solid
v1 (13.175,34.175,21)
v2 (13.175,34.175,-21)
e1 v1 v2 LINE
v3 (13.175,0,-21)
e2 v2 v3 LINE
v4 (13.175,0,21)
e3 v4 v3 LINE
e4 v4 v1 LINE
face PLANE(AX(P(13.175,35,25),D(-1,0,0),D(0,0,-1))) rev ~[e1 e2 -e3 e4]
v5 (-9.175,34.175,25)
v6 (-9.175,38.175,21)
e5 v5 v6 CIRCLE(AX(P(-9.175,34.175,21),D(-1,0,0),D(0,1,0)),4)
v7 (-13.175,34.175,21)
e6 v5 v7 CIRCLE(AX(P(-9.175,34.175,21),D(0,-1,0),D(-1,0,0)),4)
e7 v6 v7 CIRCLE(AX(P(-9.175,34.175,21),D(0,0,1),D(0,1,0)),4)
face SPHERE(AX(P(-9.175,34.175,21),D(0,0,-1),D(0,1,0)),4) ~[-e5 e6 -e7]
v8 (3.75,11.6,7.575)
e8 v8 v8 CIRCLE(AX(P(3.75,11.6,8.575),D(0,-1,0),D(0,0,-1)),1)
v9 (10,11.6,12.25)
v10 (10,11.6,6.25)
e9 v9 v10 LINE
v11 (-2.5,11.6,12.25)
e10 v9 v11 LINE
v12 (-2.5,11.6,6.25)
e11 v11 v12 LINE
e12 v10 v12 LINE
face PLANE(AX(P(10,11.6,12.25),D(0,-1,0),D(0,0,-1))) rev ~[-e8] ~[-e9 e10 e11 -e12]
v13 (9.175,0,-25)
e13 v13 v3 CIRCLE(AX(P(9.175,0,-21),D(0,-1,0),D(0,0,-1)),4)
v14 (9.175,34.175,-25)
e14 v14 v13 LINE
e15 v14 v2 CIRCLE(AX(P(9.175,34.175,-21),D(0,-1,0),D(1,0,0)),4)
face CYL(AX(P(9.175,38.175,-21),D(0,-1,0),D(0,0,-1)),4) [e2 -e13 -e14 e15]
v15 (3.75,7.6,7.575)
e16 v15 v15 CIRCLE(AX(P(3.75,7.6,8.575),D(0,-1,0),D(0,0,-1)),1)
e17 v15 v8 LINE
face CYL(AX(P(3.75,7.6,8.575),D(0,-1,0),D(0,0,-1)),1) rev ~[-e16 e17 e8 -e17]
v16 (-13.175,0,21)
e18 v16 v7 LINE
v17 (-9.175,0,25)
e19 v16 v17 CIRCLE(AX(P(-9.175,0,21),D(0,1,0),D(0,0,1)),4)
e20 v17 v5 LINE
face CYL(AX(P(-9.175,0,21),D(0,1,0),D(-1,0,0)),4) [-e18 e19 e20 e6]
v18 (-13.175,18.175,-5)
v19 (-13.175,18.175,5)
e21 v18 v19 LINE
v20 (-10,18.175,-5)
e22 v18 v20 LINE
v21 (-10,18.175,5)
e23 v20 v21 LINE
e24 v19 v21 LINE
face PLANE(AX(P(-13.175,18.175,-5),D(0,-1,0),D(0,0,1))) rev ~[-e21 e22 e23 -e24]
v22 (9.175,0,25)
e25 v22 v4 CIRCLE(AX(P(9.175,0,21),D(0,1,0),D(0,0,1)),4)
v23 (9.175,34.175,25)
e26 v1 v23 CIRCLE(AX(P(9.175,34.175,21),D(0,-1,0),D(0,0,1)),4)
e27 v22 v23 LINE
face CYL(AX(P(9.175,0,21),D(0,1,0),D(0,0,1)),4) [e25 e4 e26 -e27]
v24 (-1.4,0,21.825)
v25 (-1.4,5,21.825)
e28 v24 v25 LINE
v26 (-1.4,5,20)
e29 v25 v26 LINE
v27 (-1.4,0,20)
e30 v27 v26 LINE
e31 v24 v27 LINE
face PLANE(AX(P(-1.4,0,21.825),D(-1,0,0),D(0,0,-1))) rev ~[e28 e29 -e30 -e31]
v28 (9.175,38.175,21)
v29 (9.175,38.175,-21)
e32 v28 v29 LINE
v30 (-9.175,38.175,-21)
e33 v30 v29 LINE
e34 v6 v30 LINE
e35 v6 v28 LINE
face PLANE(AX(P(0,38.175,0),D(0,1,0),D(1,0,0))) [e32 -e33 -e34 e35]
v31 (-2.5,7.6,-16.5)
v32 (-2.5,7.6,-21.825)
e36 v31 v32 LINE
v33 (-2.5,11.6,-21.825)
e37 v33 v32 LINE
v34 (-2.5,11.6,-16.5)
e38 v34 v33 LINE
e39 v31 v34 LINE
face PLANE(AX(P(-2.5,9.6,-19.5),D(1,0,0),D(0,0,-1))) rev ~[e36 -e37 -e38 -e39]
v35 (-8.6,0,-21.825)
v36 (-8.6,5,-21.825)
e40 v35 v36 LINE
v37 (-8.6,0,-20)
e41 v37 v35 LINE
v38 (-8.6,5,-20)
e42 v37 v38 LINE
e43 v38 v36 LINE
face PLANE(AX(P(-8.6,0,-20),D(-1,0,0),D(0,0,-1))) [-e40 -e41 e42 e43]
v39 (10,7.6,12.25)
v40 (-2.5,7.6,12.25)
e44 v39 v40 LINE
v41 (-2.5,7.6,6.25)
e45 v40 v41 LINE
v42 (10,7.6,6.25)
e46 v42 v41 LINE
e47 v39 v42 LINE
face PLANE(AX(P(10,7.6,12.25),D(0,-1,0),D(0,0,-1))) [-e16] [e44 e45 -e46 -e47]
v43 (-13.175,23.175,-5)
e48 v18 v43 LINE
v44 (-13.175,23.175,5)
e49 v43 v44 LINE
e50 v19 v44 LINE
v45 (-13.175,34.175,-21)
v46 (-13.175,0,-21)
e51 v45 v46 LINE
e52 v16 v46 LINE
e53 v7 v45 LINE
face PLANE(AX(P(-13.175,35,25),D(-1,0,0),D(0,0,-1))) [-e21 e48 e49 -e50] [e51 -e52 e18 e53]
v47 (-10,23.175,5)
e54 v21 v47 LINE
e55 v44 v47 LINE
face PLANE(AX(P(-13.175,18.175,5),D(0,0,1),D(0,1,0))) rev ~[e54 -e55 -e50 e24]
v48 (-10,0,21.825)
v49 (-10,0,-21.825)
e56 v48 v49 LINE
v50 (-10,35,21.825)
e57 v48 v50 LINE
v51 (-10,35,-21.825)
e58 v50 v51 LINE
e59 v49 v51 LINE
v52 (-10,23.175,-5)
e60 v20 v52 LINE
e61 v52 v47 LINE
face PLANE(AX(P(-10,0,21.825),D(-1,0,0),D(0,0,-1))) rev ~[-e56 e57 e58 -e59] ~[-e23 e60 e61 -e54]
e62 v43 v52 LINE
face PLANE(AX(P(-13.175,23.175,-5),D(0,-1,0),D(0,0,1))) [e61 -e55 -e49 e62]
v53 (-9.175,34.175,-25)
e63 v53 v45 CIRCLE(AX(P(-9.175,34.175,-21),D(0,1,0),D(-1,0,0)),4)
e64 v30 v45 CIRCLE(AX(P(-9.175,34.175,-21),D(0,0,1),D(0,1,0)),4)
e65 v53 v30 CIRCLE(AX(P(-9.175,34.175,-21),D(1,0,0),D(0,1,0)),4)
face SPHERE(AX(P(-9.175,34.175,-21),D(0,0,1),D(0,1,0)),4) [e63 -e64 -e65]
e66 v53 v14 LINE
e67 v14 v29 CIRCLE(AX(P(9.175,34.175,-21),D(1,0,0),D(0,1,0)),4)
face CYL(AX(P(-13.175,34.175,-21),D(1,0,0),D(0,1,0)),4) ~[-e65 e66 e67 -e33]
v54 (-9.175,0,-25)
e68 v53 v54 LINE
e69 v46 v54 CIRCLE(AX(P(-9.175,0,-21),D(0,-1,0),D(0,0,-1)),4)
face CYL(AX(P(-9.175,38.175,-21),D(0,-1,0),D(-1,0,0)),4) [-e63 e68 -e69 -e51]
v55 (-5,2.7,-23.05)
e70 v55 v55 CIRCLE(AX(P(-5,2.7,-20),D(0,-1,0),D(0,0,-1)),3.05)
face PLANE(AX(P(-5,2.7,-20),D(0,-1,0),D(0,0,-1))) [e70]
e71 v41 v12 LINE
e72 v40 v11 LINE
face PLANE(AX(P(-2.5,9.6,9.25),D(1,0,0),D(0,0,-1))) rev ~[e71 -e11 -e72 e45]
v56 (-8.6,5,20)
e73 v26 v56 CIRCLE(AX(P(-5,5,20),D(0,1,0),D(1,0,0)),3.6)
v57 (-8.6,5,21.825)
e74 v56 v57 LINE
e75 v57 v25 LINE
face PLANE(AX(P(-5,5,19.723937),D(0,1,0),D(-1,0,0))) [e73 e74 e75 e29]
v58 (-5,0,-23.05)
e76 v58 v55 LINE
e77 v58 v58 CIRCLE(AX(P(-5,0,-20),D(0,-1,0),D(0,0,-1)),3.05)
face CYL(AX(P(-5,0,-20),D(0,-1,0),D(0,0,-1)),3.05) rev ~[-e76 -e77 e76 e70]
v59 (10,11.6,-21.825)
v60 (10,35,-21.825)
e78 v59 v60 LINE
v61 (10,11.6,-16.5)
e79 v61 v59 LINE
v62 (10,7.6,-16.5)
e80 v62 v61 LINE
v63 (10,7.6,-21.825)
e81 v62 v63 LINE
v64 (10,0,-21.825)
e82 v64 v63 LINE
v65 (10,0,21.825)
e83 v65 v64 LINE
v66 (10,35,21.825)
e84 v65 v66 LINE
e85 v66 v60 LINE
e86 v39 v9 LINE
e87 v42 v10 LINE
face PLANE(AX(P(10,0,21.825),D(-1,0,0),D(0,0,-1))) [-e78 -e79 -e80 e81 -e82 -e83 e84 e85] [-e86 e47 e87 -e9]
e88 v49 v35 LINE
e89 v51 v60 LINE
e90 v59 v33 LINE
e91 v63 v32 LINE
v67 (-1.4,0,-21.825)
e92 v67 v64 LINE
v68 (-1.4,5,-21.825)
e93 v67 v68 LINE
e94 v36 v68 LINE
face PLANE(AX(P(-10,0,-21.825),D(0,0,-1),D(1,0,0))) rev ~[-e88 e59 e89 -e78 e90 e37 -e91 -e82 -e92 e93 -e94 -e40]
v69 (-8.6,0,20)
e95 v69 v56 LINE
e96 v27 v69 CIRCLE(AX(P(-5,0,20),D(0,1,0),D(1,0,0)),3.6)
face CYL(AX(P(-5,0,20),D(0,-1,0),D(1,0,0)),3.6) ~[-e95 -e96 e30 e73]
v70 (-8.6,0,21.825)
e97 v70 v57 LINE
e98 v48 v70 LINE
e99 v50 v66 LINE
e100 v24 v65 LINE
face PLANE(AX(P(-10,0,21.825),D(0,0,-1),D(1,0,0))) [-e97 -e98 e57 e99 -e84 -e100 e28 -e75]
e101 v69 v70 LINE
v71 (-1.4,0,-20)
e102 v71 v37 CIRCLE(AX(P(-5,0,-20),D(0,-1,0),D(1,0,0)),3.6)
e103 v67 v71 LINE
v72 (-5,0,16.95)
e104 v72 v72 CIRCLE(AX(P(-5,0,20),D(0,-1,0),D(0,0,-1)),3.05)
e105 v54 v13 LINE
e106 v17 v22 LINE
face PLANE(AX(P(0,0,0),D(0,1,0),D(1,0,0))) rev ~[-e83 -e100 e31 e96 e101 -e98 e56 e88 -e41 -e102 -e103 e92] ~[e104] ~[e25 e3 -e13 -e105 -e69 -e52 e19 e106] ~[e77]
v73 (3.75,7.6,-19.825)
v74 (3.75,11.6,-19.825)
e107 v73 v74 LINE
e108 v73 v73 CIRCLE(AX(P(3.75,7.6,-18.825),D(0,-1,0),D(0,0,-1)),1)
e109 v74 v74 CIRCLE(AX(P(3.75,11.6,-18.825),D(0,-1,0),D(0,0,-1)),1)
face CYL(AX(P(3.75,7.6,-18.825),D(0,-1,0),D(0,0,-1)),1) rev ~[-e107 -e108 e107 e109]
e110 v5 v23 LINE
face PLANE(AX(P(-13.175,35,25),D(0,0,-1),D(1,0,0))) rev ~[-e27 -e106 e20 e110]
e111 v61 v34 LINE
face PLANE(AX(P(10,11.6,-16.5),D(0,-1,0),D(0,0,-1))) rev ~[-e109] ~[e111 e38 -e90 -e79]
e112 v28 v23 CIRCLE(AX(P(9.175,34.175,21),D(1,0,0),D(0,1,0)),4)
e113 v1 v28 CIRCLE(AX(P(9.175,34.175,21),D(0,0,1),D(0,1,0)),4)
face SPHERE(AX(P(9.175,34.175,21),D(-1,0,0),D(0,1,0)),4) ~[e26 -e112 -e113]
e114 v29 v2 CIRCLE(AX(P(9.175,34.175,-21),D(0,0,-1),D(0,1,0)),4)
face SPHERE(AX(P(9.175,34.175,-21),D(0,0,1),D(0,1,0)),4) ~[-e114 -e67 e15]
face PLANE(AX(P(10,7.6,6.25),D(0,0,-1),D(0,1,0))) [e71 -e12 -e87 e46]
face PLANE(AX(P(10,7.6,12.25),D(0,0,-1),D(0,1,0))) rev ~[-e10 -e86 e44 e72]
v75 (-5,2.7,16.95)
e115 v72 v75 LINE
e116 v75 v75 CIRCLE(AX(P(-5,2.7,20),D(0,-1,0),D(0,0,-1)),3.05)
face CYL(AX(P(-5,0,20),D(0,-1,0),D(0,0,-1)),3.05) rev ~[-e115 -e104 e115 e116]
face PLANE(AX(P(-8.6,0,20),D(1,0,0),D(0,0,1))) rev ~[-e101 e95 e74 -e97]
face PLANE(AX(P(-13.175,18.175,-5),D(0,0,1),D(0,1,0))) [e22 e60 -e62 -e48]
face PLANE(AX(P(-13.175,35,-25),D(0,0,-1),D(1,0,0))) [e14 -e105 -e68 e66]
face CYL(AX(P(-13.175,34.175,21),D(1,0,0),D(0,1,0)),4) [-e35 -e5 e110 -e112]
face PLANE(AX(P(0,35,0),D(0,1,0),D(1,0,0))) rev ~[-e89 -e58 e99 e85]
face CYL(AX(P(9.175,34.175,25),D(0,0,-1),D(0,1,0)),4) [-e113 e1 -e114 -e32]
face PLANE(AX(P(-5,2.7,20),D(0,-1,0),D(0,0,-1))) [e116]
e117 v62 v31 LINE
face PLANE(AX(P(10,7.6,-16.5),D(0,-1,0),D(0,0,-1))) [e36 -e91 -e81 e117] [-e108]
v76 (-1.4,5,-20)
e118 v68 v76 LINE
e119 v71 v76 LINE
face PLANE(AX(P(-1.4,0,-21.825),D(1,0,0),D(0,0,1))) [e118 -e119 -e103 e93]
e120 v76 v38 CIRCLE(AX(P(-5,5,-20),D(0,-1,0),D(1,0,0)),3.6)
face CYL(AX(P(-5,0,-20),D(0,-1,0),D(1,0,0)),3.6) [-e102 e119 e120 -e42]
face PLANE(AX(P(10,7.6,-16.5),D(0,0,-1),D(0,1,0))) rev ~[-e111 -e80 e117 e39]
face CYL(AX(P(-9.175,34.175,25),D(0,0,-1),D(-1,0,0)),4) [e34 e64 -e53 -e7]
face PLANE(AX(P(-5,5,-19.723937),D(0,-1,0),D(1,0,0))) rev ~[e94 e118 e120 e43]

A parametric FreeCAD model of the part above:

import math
import FreeCAD as App
import Part
import Sketcher
Q = App.Units.Quantity


def edges_at(feature, points):
    """Names of the edges that pass closest to the given points."""
    edges = feature.Shape.Edges
    near = lambda p: min(range(len(edges)), key=lambda i: edges[i].distToShape(Part.Vertex(*p))[0])
    return sorted({f"Edge{near(p) + 1}" for p in points})


def add_polygon(sketch, points):
    """Adds a closed chain of lines whose ends are joined by coincident constraints."""
    first, n = sketch.GeometryCount, len(points)
    for a, b in zip(points, points[1:] + points[:1]):
        sketch.addGeometry(Part.LineSegment(App.Vector(*a, 0), App.Vector(*b, 0)), False)
    for i in range(n):
        sketch.addConstraint(Sketcher.Constraint("Coincident", first + i, 2, first + (i + 1) % n, 1))

doc = App.newDocument("Part")
body = doc.addObject("PartDesign::Body", "Body")

sketch1 = body.newObject("Sketcher::SketchObject", "Sketch")
sketch1.AttachmentSupport = (doc.getObject("XZ_Plane"), [""])
sketch1.MapMode = "FlatFace"
add_polygon(sketch1, [(-13, -25), (-13, 25), (13, 25), (13, -25)])
add_polygon(sketch1, [(10, 22), (-10, 22), (-10, -22), (10, -22)])
sketch1.addConstraint(Sketcher.Constraint("Vertical", 0))
sketch1.addConstraint(Sketcher.Constraint("Horizontal", 1))
sketch1.addConstraint(Sketcher.Constraint("Vertical", 2))
sketch1.addConstraint(Sketcher.Constraint("Horizontal", 3))
sketch1.addConstraint(Sketcher.Constraint("Horizontal", 4))
sketch1.addConstraint(Sketcher.Constraint("Vertical", 5))
sketch1.addConstraint(Sketcher.Constraint("Horizontal", 6))
sketch1.addConstraint(Sketcher.Constraint("Vertical", 7))
sketch1.addConstraint(Sketcher.Constraint("Symmetric", 0, 2, 2, 2, -1, 1))
sketch1.addConstraint(Sketcher.Constraint("Symmetric", 4, 2, 6, 2, -1, 1))
sketch1.addConstraint(Sketcher.Constraint("DistanceX", 4, 2, 4, 1, Q("20 mm")))
sketch1.addConstraint(Sketcher.Constraint("DistanceY", 0, 1, 0, 2, Q("50 mm")))
sketch1.addConstraint(Sketcher.Constraint("DistanceX", 1, 1, 1, 2, Q("26.35 mm")))
sketch1.addConstraint(Sketcher.Constraint("DistanceY", 5, 2, 5, 1, Q("43.65 mm")))
pad1 = body.newObject("PartDesign::Pad", "Pad")
pad1.Profile = sketch1
pad1.Length = 35
pad1.Reversed = True

sketch2 = body.newObject("Sketcher::SketchObject", "Sketch001")
sketch2.AttachmentSupport = (doc.getObject("XZ_Plane"), [""])
sketch2.MapMode = "FlatFace"
sketch2.AttachmentOffset = App.Placement(App.Vector(0, 0, -35), App.Rotation())
add_polygon(sketch2, [(-13, -25), (-13, 25), (13, 25), (13, -25)])
sketch2.addConstraint(Sketcher.Constraint("Vertical", 0))
sketch2.addConstraint(Sketcher.Constraint("Horizontal", 1))
sketch2.addConstraint(Sketcher.Constraint("Vertical", 2))
sketch2.addConstraint(Sketcher.Constraint("Horizontal", 3))
sketch2.addConstraint(Sketcher.Constraint("Symmetric", 0, 2, 2, 2, -1, 1))
sketch2.addConstraint(Sketcher.Constraint("DistanceY", 0, 1, 0, 2, Q("50 mm")))
sketch2.addConstraint(Sketcher.Constraint("DistanceX", 1, 1, 1, 2, Q("26.35 mm")))
pad2 = body.newObject("PartDesign::Pad", "Pad001")
pad2.Profile = sketch2
pad2.Length = 3.175
pad2.Reversed = True

sketch3 = body.newObject("Sketcher::SketchObject", "Sketch002")
sketch3.AttachmentSupport = (doc.getObject("XZ_Plane"), [""])
sketch3.MapMode = "FlatFace"
sketch3.addGeometry(Part.LineSegment(App.Vector(-8.6, -20, 0), App.Vector(-8.6, -21.8, 0)), False)
sketch3.addGeometry(Part.LineSegment(App.Vector(-8.6, -21.8, 0), App.Vector(-1.4, -21.8, 0)), False)
sketch3.addGeometry(Part.LineSegment(App.Vector(-1.4, -21.8, 0), App.Vector(-1.4, -20, 0)), False)
sketch3.addGeometry(Part.ArcOfCircle(Part.Circle(App.Vector(-5, -20, 0), App.Vector(0, 0, 1), 3.6), math.radians(0), math.radians(180)), False)
sketch3.addGeometry(Part.LineSegment(App.Vector(-1.4, 21.8, 0), App.Vector(-8.6, 21.8, 0)), False)
sketch3.addGeometry(Part.LineSegment(App.Vector(-8.6, 21.8, 0), App.Vector(-8.6, 20, 0)), False)
sketch3.addGeometry(Part.ArcOfCircle(Part.Circle(App.Vector(-5, 20, 0), App.Vector(0, 0, 1), 3.6), math.radians(180), math.radians(360)), False)
sketch3.addGeometry(Part.LineSegment(App.Vector(-1.4, 20, 0), App.Vector(-1.4, 21.8, 0)), False)
sketch3.addConstraint(Sketcher.Constraint("Coincident", 0, 2, 1, 1))
sketch3.addConstraint(Sketcher.Constraint("Coincident", 1, 2, 2, 1))
sketch3.addConstraint(Sketcher.Constraint("Tangent", 2, 2, 3, 1))
sketch3.addConstraint(Sketcher.Constraint("Tangent", 3, 2, 0, 1))
sketch3.addConstraint(Sketcher.Constraint("Coincident", 4, 2, 5, 1))
sketch3.addConstraint(Sketcher.Constraint("Tangent", 5, 2, 6, 1))
sketch3.addConstraint(Sketcher.Constraint("Tangent", 6, 2, 7, 1))
sketch3.addConstraint(Sketcher.Constraint("Coincident", 7, 2, 4, 1))
sketch3.addConstraint(Sketcher.Constraint("Vertical", 0))
sketch3.addConstraint(Sketcher.Constraint("Horizontal", 1))
sketch3.addConstraint(Sketcher.Constraint("Vertical", 2))
sketch3.addConstraint(Sketcher.Constraint("Horizontal", 4))
sketch3.addConstraint(Sketcher.Constraint("Vertical", 5))
sketch3.addConstraint(Sketcher.Constraint("Vertical", 7))
sketch3.addConstraint(Sketcher.Constraint("Equal", 3, 6))
sketch3.addConstraint(Sketcher.Constraint("Symmetric", 3, 3, 6, 3, -1))
sketch3.addConstraint(Sketcher.Constraint("Equal", 2, 5))
sketch3.addConstraint(Sketcher.Constraint("Radius", 3, Q("3.6 mm")))
sketch3.addConstraint(Sketcher.Constraint("DistanceX", 3, 3, -1, 1, Q("5 mm")))
sketch3.addConstraint(Sketcher.Constraint("DistanceY", 3, 3, -1, 1, Q("20 mm")))
sketch3.addConstraint(Sketcher.Constraint("DistanceY", 0, 2, 0, 1, Q("1.825 mm")))
pad3 = body.newObject("PartDesign::Pad", "Pad002")
pad3.Profile = sketch3
pad3.Length = 5
pad3.Reversed = True
doc.recompute()

fillet = body.newObject("PartDesign::Fillet", "Fillet")
fillet.Base = (pad3, edges_at(pad3, [
    (-13.175, 38.175, 0),
    (0, 38.175, 25),
    (13.175, 38.175, 0),
    (0, 38.175, -25),
    (13.175, 19.087, 25),
    (-13.175, 19.087, 25),
    (-13.175, 19.087, -25),
    (13.175, 19.087, -25),
]))
fillet.Radius = 4

sketch4 = body.newObject("Sketcher::SketchObject", "Sketch003")
sketch4.AttachmentSupport = (doc.getObject("YZ_Plane"), [""])
sketch4.MapMode = "FlatFace"
sketch4.AttachmentOffset = App.Placement(App.Vector(0, 0, -13.175), App.Rotation())
add_polygon(sketch4, [(23, -5), (18, -5), (18, 5), (23, 5)])
sketch4.addConstraint(Sketcher.Constraint("Horizontal", 0))
sketch4.addConstraint(Sketcher.Constraint("Vertical", 1))
sketch4.addConstraint(Sketcher.Constraint("Horizontal", 2))
sketch4.addConstraint(Sketcher.Constraint("Vertical", 3))
sketch4.addConstraint(Sketcher.Constraint("DistanceX", 0, 2, 0, 1, Q("5 mm")))
sketch4.addConstraint(Sketcher.Constraint("DistanceY", 1, 1, 1, 2, Q("10 mm")))
sketch4.addConstraint(Sketcher.Constraint("DistanceY", 0, 2, -1, 1, Q("5 mm")))
sketch4.addConstraint(Sketcher.Constraint("DistanceX", -1, 1, 0, 2, Q("18.175 mm")))
pocket1 = body.newObject("PartDesign::Pocket", "Pocket")
pocket1.Profile = sketch4
pocket1.Length = 3.175
pocket1.Reversed = True

sketch5 = body.newObject("Sketcher::SketchObject", "Sketch004")
sketch5.AttachmentSupport = (doc.getObject("XZ_Plane"), [""])
sketch5.MapMode = "FlatFace"
sketch5.addGeometry(Part.Circle(App.Vector(-5, -20, 0), App.Vector(0, 0, 1), 3), False)
sketch5.addGeometry(Part.Circle(App.Vector(-5, 20, 0), App.Vector(0, 0, 1), 3), False)
sketch5.addConstraint(Sketcher.Constraint("Equal", 0, 1))
sketch5.addConstraint(Sketcher.Constraint("Symmetric", 0, 3, 1, 3, -1))
sketch5.addConstraint(Sketcher.Constraint("Diameter", 0, Q("6.1 mm")))
sketch5.addConstraint(Sketcher.Constraint("DistanceX", 0, 3, -1, 1, Q("5 mm")))
sketch5.addConstraint(Sketcher.Constraint("DistanceY", 0, 3, -1, 1, Q("20 mm")))
pocket2 = body.newObject("PartDesign::Pocket", "Pocket001")
pocket2.Profile = sketch5
pocket2.Length = 2.7

sketch6 = body.newObject("Sketcher::SketchObject", "Sketch005")
sketch6.AttachmentSupport = (doc.getObject("YZ_Plane"), [""])
sketch6.MapMode = "FlatFace"
sketch6.AttachmentOffset = App.Placement(App.Vector(0, 0, 10), App.Rotation())
add_polygon(sketch6, [(11.6, -16.5), (7.6, -16.5), (7.6, -22.5), (11.6, -22.5)])
add_polygon(sketch6, [(11.6, 12.2), (7.6, 12.2), (7.6, 6.2), (11.6, 6.2)])
sketch6.addConstraint(Sketcher.Constraint("Horizontal", 0))
sketch6.addConstraint(Sketcher.Constraint("Vertical", 1))
sketch6.addConstraint(Sketcher.Constraint("Horizontal", 2))
sketch6.addConstraint(Sketcher.Constraint("Vertical", 3))
sketch6.addConstraint(Sketcher.Constraint("Horizontal", 4))
sketch6.addConstraint(Sketcher.Constraint("Vertical", 5))
sketch6.addConstraint(Sketcher.Constraint("Horizontal", 6))
sketch6.addConstraint(Sketcher.Constraint("Vertical", 7))
sketch6.addConstraint(Sketcher.Constraint("Vertical", 1, 2, 4, 2))
sketch6.addConstraint(Sketcher.Constraint("Vertical", 3, 2, 6, 2))
sketch6.addConstraint(Sketcher.Constraint("Equal", 3, 5))
sketch6.addConstraint(Sketcher.Constraint("DistanceX", 0, 2, 0, 1, Q("4 mm")))
sketch6.addConstraint(Sketcher.Constraint("DistanceY", 1, 2, 1, 1, Q("6 mm")))
sketch6.addConstraint(Sketcher.Constraint("DistanceX", -1, 1, 0, 2, Q("7.6 mm")))
sketch6.addConstraint(Sketcher.Constraint("DistanceY", 0, 2, -1, 1, Q("16.5 mm")))
sketch6.addConstraint(Sketcher.Constraint("DistanceY", -1, 1, 4, 2, Q("12.25 mm")))
pad4 = body.newObject("PartDesign::Pad", "Pad003")
pad4.Profile = sketch6
pad4.Length = 12.5
pad4.Reversed = True

sketch7 = body.newObject("Sketcher::SketchObject", "Sketch006")
sketch7.AttachmentSupport = (doc.getObject("XZ_Plane"), [""])
sketch7.MapMode = "FlatFace"
sketch7.AttachmentOffset = App.Placement(App.Vector(0, 0, -7.6), App.Rotation())
sketch7.addGeometry(Part.Circle(App.Vector(3.8, 8.6, 0), App.Vector(0, 0, 1), 1), False)
sketch7.addGeometry(Part.Circle(App.Vector(3.8, -18.8, 0), App.Vector(0, 0, 1), 1), False)
sketch7.addConstraint(Sketcher.Constraint("Equal", 0, 1))
sketch7.addConstraint(Sketcher.Constraint("Vertical", 0, 3, 1, 3))
sketch7.addConstraint(Sketcher.Constraint("Diameter", 0, Q("2 mm")))
sketch7.addConstraint(Sketcher.Constraint("DistanceY", 1, 3, 0, 3, Q("27.4 mm")))
sketch7.addConstraint(Sketcher.Constraint("DistanceX", -1, 1, 0, 3, Q("3.75 mm")))
sketch7.addConstraint(Sketcher.Constraint("DistanceY", -1, 1, 0, 3, Q("8.575 mm")))
pocket3 = body.newObject("PartDesign::Pocket", "Pocket002")
pocket3.Profile = sketch7
pocket3.Length = 15.675

doc.recompute()
